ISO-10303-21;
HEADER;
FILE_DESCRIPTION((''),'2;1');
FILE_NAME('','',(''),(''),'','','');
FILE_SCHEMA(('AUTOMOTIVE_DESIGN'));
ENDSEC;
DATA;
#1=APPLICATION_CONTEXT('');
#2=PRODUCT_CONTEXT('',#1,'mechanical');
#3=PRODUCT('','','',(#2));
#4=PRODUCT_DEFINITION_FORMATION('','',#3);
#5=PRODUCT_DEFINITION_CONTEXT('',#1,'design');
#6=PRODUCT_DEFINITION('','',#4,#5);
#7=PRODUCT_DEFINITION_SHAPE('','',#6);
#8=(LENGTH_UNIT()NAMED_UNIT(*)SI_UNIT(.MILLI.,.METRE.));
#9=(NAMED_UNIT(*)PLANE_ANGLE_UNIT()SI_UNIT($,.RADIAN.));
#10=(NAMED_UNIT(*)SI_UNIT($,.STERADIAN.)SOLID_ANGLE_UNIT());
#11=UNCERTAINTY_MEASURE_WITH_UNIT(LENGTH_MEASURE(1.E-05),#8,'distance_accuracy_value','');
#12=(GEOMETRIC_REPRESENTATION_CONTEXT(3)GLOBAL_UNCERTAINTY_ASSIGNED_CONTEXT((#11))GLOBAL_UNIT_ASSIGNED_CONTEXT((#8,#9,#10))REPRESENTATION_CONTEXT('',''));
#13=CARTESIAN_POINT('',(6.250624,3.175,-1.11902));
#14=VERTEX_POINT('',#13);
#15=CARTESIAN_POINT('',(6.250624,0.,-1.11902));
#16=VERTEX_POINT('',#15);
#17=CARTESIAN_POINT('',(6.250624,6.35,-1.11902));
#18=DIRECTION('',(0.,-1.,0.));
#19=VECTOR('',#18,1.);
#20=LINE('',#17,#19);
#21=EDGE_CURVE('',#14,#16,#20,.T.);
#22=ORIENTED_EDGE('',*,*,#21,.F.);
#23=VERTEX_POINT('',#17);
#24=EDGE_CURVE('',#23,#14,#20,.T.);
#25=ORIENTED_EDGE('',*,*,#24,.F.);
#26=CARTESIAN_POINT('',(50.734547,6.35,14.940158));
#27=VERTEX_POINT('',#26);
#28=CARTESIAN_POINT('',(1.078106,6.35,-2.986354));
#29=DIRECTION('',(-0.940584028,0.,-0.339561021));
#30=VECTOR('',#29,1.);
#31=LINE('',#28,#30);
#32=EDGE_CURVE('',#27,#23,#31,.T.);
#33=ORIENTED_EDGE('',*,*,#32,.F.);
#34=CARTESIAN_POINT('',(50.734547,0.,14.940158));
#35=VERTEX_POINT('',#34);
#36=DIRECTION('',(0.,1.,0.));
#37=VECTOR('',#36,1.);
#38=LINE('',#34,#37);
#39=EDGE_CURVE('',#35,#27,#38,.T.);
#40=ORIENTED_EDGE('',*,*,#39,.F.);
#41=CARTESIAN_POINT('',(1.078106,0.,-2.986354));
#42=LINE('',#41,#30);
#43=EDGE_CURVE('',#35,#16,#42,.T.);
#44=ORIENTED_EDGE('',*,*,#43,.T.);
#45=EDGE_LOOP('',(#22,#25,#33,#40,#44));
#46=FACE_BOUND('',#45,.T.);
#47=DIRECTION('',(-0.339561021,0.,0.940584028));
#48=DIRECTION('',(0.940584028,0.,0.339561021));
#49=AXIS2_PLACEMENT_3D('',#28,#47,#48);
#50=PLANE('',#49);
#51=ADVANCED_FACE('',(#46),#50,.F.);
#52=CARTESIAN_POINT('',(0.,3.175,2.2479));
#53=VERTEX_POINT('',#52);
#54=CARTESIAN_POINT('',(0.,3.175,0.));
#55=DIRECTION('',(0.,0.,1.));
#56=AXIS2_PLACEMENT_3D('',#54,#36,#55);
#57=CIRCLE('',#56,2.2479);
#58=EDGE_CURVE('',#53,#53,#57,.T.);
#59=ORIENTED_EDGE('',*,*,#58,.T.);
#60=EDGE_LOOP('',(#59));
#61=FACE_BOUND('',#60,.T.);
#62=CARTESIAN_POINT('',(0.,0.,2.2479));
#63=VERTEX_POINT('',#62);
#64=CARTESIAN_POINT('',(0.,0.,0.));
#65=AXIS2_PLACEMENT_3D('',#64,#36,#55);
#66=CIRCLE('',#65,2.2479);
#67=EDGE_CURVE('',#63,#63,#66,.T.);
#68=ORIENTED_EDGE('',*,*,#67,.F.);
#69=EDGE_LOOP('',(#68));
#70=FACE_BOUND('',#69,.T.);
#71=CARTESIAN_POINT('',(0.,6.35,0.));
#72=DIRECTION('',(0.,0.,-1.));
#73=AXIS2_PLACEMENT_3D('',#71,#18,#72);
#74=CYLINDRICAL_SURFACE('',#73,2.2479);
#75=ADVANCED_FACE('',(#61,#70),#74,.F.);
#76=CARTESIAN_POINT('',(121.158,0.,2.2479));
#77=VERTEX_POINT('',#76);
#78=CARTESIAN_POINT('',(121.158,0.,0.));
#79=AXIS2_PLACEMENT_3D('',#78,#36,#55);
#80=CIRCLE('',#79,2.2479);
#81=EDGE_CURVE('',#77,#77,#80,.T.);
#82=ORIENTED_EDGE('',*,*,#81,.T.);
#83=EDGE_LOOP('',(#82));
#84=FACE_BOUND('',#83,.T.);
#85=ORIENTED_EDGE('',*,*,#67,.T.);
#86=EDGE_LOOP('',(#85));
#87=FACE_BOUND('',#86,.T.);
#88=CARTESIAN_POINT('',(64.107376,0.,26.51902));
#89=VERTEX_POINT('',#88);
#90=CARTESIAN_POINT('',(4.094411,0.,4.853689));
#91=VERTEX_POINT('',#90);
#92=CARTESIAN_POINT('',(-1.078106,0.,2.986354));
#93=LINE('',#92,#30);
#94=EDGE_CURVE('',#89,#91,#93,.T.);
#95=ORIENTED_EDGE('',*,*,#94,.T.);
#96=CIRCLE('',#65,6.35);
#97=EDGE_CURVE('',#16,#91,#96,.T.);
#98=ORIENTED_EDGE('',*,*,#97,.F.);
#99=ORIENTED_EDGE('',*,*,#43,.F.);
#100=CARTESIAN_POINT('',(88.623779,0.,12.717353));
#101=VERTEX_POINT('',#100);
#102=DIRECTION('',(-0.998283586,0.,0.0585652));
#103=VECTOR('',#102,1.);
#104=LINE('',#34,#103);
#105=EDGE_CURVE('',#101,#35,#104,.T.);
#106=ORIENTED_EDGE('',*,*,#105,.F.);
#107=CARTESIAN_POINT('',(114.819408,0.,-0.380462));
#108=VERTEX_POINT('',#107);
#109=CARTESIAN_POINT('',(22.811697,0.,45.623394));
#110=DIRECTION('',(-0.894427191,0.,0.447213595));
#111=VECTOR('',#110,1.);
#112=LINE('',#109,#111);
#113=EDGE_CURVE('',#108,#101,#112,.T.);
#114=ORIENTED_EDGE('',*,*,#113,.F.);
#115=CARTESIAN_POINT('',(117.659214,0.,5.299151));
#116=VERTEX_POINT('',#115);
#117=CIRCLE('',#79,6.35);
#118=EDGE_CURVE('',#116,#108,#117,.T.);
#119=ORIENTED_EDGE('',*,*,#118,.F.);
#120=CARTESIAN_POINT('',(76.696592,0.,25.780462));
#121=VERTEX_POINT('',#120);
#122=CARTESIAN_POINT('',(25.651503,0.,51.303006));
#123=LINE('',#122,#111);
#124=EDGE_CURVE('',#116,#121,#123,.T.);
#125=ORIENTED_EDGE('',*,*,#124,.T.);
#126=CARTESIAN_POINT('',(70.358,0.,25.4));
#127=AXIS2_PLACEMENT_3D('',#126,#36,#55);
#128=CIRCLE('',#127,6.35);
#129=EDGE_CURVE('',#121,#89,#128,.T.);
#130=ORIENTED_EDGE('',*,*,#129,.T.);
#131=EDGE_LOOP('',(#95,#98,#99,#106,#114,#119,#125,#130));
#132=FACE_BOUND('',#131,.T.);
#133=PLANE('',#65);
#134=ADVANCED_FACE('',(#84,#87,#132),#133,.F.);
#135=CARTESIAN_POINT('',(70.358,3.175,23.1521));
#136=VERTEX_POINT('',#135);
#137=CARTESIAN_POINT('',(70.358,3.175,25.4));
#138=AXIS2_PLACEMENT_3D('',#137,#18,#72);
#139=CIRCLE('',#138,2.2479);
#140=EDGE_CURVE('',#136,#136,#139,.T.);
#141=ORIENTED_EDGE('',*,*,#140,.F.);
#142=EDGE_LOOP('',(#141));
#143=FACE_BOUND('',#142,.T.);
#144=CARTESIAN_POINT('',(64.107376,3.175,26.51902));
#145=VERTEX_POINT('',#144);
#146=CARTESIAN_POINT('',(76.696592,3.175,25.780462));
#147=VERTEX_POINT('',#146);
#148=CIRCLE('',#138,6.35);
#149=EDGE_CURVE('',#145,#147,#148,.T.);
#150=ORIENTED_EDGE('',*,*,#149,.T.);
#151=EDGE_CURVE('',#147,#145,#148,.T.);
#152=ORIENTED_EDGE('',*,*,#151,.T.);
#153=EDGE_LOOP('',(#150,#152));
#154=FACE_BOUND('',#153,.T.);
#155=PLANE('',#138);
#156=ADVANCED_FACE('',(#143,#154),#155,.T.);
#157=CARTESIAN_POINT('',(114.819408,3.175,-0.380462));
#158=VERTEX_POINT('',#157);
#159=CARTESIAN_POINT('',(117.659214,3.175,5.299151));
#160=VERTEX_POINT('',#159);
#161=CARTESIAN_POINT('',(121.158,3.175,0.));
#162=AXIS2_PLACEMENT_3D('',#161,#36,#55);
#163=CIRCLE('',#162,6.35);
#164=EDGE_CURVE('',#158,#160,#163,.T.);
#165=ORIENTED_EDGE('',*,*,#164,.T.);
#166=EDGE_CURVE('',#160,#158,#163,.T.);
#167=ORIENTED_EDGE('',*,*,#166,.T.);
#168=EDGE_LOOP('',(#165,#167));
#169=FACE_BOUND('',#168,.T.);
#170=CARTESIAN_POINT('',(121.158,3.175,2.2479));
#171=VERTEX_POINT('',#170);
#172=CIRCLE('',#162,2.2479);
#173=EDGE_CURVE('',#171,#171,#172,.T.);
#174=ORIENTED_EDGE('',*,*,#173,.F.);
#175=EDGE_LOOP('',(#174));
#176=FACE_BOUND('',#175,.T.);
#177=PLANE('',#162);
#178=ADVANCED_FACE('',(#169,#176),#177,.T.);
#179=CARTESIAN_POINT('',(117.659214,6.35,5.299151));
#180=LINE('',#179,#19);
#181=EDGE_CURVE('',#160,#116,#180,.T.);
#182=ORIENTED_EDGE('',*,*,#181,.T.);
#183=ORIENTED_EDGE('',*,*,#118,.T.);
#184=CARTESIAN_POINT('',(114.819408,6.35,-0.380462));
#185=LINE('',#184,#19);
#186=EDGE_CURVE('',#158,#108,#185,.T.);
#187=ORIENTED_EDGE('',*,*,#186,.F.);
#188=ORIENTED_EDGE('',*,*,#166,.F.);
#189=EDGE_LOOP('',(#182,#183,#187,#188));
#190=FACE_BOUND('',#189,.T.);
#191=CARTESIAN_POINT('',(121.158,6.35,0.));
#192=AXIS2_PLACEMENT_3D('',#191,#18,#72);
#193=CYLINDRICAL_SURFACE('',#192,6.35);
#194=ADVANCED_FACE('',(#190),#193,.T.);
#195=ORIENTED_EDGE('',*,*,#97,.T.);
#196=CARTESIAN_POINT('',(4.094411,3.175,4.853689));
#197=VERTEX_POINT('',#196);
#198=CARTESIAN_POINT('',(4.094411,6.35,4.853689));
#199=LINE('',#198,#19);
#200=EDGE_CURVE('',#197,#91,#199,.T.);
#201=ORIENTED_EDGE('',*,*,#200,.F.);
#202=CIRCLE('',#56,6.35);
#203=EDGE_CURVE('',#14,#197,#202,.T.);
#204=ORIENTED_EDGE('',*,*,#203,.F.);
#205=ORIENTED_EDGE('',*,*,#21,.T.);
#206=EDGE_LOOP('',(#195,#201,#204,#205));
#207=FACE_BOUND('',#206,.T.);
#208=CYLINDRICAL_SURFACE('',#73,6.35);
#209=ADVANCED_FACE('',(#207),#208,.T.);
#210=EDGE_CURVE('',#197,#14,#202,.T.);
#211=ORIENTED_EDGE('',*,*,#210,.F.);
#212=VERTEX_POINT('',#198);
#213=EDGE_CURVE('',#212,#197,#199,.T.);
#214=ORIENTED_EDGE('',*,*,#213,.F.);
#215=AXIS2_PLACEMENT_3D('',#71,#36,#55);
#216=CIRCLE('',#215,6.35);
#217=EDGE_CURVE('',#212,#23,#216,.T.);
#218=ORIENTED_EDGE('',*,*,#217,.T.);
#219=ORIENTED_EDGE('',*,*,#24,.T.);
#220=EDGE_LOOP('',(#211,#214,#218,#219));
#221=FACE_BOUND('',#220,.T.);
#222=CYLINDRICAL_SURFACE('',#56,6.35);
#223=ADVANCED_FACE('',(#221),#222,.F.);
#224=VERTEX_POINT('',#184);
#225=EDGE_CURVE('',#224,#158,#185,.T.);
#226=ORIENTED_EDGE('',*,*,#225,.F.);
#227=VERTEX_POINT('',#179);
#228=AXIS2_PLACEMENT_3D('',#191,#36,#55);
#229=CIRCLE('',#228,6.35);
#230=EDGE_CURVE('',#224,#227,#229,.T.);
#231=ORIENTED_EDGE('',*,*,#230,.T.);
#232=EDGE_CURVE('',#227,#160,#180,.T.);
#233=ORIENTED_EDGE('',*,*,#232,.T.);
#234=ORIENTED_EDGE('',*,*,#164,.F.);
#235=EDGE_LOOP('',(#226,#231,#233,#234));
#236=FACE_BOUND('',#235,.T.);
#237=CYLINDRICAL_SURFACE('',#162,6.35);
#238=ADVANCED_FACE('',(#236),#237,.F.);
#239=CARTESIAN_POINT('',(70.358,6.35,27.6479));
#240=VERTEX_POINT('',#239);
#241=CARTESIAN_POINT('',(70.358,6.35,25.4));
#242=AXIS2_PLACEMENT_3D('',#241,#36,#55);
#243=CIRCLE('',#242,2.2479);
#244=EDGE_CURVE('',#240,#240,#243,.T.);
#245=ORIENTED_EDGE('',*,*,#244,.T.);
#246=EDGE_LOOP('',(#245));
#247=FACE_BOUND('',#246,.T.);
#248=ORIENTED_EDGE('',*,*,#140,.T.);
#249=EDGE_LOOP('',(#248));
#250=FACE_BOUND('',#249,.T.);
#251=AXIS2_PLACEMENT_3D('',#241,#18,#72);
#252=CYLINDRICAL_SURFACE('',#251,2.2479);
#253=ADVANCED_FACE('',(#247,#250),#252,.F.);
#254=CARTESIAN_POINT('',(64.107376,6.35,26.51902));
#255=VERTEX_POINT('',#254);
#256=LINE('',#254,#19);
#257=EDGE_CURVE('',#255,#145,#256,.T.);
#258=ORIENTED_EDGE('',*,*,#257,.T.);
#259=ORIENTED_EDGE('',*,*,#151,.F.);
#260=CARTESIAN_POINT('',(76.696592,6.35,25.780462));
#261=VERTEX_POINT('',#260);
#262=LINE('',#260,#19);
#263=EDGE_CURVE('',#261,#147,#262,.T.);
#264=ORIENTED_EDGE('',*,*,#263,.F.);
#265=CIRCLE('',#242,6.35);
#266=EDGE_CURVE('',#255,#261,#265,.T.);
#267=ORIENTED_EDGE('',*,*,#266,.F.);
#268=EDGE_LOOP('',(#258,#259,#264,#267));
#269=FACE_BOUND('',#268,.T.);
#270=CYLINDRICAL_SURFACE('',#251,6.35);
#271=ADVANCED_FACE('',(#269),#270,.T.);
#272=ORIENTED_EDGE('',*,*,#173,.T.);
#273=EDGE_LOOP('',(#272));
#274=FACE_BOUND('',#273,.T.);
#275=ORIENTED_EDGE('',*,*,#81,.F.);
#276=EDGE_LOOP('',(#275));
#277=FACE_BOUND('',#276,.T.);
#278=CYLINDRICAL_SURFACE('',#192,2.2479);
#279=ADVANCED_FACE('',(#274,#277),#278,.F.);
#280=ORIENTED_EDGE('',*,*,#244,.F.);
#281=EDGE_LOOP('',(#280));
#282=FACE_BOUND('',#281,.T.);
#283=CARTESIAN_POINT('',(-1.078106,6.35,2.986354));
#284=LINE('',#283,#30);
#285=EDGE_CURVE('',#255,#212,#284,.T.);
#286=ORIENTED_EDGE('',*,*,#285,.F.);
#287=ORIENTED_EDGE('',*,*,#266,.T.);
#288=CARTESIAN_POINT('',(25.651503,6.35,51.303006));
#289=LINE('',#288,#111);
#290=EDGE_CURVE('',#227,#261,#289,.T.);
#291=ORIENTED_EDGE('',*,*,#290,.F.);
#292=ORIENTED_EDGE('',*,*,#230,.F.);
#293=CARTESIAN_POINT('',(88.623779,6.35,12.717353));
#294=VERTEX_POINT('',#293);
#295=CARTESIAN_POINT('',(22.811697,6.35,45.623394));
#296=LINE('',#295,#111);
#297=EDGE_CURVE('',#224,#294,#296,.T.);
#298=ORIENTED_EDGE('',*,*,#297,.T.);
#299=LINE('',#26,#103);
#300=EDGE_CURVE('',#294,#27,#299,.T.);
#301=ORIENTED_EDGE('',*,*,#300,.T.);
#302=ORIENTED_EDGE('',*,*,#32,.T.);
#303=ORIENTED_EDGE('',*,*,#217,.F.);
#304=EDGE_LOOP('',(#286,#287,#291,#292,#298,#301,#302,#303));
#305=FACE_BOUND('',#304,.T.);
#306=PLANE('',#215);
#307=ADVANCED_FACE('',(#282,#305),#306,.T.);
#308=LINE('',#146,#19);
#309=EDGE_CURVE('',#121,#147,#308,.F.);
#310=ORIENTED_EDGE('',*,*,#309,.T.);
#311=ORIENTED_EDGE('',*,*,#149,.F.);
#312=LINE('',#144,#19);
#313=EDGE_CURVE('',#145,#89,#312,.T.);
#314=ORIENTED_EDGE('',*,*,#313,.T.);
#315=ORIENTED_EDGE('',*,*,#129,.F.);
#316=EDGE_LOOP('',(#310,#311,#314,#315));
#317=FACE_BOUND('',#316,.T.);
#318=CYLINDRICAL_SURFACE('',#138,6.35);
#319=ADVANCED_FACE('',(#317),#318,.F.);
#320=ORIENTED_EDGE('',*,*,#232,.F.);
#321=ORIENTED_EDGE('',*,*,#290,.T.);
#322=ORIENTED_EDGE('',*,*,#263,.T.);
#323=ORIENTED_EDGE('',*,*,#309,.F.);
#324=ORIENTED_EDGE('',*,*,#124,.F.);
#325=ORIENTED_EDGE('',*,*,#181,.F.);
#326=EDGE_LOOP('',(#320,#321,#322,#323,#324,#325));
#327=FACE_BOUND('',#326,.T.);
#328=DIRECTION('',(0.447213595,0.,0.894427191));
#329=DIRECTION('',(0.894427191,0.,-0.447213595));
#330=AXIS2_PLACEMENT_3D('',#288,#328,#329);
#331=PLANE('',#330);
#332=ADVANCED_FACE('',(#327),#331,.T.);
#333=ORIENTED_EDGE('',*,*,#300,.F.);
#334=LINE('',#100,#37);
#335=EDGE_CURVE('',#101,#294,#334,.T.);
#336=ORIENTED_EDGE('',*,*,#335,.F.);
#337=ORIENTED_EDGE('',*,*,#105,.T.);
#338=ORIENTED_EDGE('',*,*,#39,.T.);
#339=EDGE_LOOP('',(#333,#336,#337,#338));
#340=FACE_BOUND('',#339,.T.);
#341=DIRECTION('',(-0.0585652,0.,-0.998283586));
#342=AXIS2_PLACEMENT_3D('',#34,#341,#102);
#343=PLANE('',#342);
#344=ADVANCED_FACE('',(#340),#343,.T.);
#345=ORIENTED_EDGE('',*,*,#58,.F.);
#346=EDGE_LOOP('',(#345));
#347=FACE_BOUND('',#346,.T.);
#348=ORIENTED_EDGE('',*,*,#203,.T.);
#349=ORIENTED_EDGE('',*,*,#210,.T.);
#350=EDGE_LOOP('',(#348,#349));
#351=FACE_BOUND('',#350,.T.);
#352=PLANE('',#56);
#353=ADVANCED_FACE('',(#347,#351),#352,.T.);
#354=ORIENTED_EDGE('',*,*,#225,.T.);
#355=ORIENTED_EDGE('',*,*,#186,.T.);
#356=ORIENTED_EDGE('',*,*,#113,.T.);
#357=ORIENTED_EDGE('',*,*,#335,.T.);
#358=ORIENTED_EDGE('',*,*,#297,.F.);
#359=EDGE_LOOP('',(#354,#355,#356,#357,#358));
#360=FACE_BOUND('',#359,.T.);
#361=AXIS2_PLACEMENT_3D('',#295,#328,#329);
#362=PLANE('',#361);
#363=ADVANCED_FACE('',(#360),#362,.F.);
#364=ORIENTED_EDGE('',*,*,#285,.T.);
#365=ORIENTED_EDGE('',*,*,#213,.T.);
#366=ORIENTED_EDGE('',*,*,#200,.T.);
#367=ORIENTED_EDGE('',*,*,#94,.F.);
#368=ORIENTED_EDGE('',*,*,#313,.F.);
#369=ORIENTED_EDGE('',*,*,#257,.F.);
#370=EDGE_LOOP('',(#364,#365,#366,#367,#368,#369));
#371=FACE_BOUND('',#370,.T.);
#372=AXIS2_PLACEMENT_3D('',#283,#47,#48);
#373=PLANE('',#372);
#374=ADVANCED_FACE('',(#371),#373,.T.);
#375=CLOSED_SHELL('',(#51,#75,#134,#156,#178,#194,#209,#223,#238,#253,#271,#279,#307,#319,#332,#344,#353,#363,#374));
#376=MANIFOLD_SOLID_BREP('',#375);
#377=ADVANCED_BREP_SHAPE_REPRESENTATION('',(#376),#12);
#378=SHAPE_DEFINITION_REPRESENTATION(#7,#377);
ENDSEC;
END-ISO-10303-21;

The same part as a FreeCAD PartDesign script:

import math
import FreeCAD as App
import Part
import Sketcher
Q = App.Units.Quantity

doc = App.newDocument("Part")
body = doc.addObject("PartDesign::Body", "Body")

sketch1 = body.newObject("Sketcher::SketchObject", "Sketch")
sketch1.AttachmentSupport = (doc.getObject("XZ_Plane"), [""])
sketch1.MapMode = "FlatFace"
sketch1.addGeometry([
    Part.LineSegment(App.Vector(76.7, 25.8, 0), App.Vector(117.7, 5.3, 0)),
    Part.ArcOfCircle(Part.Circle(App.Vector(121.2, 0, 0), App.Vector(0, 0, 1), 6.3), math.radians(-177), math.radians(123)),
    Part.LineSegment(App.Vector(114.8, -0.4, 0), App.Vector(73.9, 20.1, 0)),
    Part.ArcOfCircle(Part.Circle(App.Vector(70.4, 25.4, 0), App.Vector(0, 0, 1), 6.3), math.radians(-130), math.radians(-57)),
    Part.LineSegment(App.Vector(66.3, 20.5, 0), App.Vector(6.3, -1.1, 0)),
    Part.ArcOfCircle(Part.Circle(App.Vector(0, 0, 0), App.Vector(0, 0, 1), 6.3), math.radians(50), math.radians(350)),
    Part.LineSegment(App.Vector(4.1, 4.9, 0), App.Vector(64.1, 26.5, 0)),
    Part.ArcOfCircle(Part.Circle(App.Vector(70.4, 25.4, 0), App.Vector(0, 0, 1), 6.3), math.radians(3), math.radians(170)),
    Part.Circle(App.Vector(70.4, 25.4, 0), App.Vector(0, 0, 1), 2.2),
    Part.Circle(App.Vector(0, 0, 0), App.Vector(0, 0, 1), 2.2),
    Part.Circle(App.Vector(121.2, 0, 0), App.Vector(0, 0, 1), 2.2),
], False)
sketch1.addConstraint([
    Sketcher.Constraint("Coincident", 0, 2, 1, 2),
    Sketcher.Constraint("Coincident", 1, 1, 2, 1),
    Sketcher.Constraint("Coincident", 2, 2, 3, 2),
    Sketcher.Constraint("Coincident", 3, 1, 4, 1),
    Sketcher.Constraint("Coincident", 4, 2, 5, 2),
    Sketcher.Constraint("Coincident", 5, 1, 6, 1),
    Sketcher.Constraint("Coincident", 6, 2, 7, 2),
    Sketcher.Constraint("Coincident", 7, 1, 0, 1),
    Sketcher.Constraint("Coincident", 5, 3, -1, 1),
    Sketcher.Constraint("Coincident", 9, 3, -1, 1),
    Sketcher.Constraint("Coincident", 7, 3, 3, 3),
    Sketcher.Constraint("Coincident", 8, 3, 3, 3),
    Sketcher.Constraint("Coincident", 10, 3, 1, 3),
    Sketcher.Constraint("Equal", 1, 3),
    Sketcher.Constraint("Equal", 3, 5),
    Sketcher.Constraint("Equal", 5, 7),
    Sketcher.Constraint("Equal", 8, 9),
    Sketcher.Constraint("Equal", 9, 10),
    Sketcher.Constraint("PointOnObject", 1, 3, -1),
    Sketcher.Constraint("Parallel", 0, 2),
    Sketcher.Constraint("Parallel", 4, 6),
    Sketcher.Constraint("Equal", 0, 2),
    Sketcher.Constraint("Equal", 4, 6),
    Sketcher.Constraint("Radius", 1, Q("0.25 in")),
    Sketcher.Constraint("Diameter", 8, Q("0.177 in")),
    Sketcher.Constraint("DistanceY", -1, 1, 3, 3, Q("1 in")),
    Sketcher.Constraint("DistanceX", 3, 3, 1, 3, Q("2 in")),
    Sketcher.Constraint("DistanceX", -1, 1, 1, 3, Q("4.77 in")),
    Sketcher.Constraint("DistanceY", 0, 2, 2, 2, Q("14.801698 mm")),
    Sketcher.Constraint("Distance", 4, Q("63.803938 mm")),
    Sketcher.Constraint("DistanceY", 1, 1, -1, 1, Q("0.380462 mm")),
    Sketcher.Constraint("DistanceX", -1, 1, 3, 1, Q("66.263589 mm")),
])
pad1 = body.newObject("PartDesign::Pad", "Pad")
pad1.Profile = sketch1
pad1.Length = Q("0.25 in")
pad1.Reversed = True

sketch2 = body.newObject("Sketcher::SketchObject", "Sketch001")
sketch2.AttachmentSupport = (doc.getObject("XZ_Plane"), [""])
sketch2.MapMode = "FlatFace"
sketch2.AttachmentOffset = App.Placement(App.Vector(0, 0, -0.125 * 25.4), App.Rotation())
sketch2.addGeometry([
    Part.Circle(App.Vector(0, 0, 0), App.Vector(0, 0, 1), 6),
    Part.Circle(App.Vector(121, 0, 0), App.Vector(0, 0, 1), 6),
], False)
sketch2.addConstraint([
    Sketcher.Constraint("Coincident", 0, 3, -1, 1),
    Sketcher.Constraint("Equal", 0, 1),
    Sketcher.Constraint("PointOnObject", 1, 3, -1),
    Sketcher.Constraint("Diameter", 0, Q("0.5 in")),
    Sketcher.Constraint("DistanceX", -1, 1, 1, 3, Q("4.77 in")),
])
pocket1 = body.newObject("PartDesign::Pocket", "Pocket")
pocket1.Profile = sketch2
pocket1.Length = Q("0.125 in")

sketch3 = body.newObject("Sketcher::SketchObject", "Sketch002")
sketch3.AttachmentSupport = (doc.getObject("XZ_Plane"), [""])
sketch3.MapMode = "FlatFace"
sketch3.addGeometry(Part.Circle(App.Vector(70, 25, 0), App.Vector(0, 0, 1), 6), False)
sketch3.addConstraint([
    Sketcher.Constraint("Diameter", 0, Q("0.5 in")),
    Sketcher.Constraint("DistanceY", -1, 1, 0, 3, Q("1 in")),
    Sketcher.Constraint("DistanceX", -1, 1, 0, 3, Q("2.77 in")),
])
pocket2 = body.newObject("PartDesign::Pocket", "Pocket001")
pocket2.Profile = sketch3
pocket2.Length = Q("0.125 in")

sketch4 = body.newObject("Sketcher::SketchObject", "Sketch003")
sketch4.AttachmentSupport = (doc.getObject("XZ_Plane"), [""])
sketch4.MapMode = "FlatFace"
sketch4.addGeometry([
    Part.LineSegment(App.Vector(74, 20, 0), App.Vector(89, 13, 0)),
    Part.LineSegment(App.Vector(89, 13, 0), App.Vector(51, 15, 0)),
    Part.LineSegment(App.Vector(51, 15, 0), App.Vector(66, 21, 0)),
    Part.ArcOfCircle(Part.Circle(App.Vector(70, 25, 0), App.Vector(0, 0, 1), 6), math.radians(-130), math.radians(-57)),
], False)
sketch4.addConstraint([
    Sketcher.Constraint("Coincident", 0, 2, 1, 1),
    Sketcher.Constraint("Coincident", 1, 2, 2, 1),
    Sketcher.Constraint("Coincident", 2, 2, 3, 1),
    Sketcher.Constraint("Coincident", 3, 2, 0, 1),
    Sketcher.Constraint("Equal", 0, 2),
    Sketcher.Constraint("Radius", 3, Q("0.25 in")),
    Sketcher.Constraint("DistanceY", -1, 1, 3, 3, Q("1 in")),
    Sketcher.Constraint("Distance", 0, Q("0.65 in")),
    Sketcher.Constraint("DistanceX", -1, 1, 3, 3, Q("2.77 in")),
    Sketcher.Constraint("DistanceX", -1, 1, 0, 2, Q("88.623779 mm")),
    Sketcher.Constraint("DistanceY", -1, 1, 1, 2, Q("14.940158 mm")),
    Sketcher.Constraint("DistanceX", -1, 1, 2, 2, Q("66.263589 mm")),
    Sketcher.Constraint("DistanceY", -1, 1, 3, 2, Q("20.100849 mm")),
])
pad2 = body.newObject("PartDesign::Pad", "Pad001")
pad2.Profile = sketch4
pad2.Length = Q("0.25 in")
pad2.Reversed = True

doc.recompute()
